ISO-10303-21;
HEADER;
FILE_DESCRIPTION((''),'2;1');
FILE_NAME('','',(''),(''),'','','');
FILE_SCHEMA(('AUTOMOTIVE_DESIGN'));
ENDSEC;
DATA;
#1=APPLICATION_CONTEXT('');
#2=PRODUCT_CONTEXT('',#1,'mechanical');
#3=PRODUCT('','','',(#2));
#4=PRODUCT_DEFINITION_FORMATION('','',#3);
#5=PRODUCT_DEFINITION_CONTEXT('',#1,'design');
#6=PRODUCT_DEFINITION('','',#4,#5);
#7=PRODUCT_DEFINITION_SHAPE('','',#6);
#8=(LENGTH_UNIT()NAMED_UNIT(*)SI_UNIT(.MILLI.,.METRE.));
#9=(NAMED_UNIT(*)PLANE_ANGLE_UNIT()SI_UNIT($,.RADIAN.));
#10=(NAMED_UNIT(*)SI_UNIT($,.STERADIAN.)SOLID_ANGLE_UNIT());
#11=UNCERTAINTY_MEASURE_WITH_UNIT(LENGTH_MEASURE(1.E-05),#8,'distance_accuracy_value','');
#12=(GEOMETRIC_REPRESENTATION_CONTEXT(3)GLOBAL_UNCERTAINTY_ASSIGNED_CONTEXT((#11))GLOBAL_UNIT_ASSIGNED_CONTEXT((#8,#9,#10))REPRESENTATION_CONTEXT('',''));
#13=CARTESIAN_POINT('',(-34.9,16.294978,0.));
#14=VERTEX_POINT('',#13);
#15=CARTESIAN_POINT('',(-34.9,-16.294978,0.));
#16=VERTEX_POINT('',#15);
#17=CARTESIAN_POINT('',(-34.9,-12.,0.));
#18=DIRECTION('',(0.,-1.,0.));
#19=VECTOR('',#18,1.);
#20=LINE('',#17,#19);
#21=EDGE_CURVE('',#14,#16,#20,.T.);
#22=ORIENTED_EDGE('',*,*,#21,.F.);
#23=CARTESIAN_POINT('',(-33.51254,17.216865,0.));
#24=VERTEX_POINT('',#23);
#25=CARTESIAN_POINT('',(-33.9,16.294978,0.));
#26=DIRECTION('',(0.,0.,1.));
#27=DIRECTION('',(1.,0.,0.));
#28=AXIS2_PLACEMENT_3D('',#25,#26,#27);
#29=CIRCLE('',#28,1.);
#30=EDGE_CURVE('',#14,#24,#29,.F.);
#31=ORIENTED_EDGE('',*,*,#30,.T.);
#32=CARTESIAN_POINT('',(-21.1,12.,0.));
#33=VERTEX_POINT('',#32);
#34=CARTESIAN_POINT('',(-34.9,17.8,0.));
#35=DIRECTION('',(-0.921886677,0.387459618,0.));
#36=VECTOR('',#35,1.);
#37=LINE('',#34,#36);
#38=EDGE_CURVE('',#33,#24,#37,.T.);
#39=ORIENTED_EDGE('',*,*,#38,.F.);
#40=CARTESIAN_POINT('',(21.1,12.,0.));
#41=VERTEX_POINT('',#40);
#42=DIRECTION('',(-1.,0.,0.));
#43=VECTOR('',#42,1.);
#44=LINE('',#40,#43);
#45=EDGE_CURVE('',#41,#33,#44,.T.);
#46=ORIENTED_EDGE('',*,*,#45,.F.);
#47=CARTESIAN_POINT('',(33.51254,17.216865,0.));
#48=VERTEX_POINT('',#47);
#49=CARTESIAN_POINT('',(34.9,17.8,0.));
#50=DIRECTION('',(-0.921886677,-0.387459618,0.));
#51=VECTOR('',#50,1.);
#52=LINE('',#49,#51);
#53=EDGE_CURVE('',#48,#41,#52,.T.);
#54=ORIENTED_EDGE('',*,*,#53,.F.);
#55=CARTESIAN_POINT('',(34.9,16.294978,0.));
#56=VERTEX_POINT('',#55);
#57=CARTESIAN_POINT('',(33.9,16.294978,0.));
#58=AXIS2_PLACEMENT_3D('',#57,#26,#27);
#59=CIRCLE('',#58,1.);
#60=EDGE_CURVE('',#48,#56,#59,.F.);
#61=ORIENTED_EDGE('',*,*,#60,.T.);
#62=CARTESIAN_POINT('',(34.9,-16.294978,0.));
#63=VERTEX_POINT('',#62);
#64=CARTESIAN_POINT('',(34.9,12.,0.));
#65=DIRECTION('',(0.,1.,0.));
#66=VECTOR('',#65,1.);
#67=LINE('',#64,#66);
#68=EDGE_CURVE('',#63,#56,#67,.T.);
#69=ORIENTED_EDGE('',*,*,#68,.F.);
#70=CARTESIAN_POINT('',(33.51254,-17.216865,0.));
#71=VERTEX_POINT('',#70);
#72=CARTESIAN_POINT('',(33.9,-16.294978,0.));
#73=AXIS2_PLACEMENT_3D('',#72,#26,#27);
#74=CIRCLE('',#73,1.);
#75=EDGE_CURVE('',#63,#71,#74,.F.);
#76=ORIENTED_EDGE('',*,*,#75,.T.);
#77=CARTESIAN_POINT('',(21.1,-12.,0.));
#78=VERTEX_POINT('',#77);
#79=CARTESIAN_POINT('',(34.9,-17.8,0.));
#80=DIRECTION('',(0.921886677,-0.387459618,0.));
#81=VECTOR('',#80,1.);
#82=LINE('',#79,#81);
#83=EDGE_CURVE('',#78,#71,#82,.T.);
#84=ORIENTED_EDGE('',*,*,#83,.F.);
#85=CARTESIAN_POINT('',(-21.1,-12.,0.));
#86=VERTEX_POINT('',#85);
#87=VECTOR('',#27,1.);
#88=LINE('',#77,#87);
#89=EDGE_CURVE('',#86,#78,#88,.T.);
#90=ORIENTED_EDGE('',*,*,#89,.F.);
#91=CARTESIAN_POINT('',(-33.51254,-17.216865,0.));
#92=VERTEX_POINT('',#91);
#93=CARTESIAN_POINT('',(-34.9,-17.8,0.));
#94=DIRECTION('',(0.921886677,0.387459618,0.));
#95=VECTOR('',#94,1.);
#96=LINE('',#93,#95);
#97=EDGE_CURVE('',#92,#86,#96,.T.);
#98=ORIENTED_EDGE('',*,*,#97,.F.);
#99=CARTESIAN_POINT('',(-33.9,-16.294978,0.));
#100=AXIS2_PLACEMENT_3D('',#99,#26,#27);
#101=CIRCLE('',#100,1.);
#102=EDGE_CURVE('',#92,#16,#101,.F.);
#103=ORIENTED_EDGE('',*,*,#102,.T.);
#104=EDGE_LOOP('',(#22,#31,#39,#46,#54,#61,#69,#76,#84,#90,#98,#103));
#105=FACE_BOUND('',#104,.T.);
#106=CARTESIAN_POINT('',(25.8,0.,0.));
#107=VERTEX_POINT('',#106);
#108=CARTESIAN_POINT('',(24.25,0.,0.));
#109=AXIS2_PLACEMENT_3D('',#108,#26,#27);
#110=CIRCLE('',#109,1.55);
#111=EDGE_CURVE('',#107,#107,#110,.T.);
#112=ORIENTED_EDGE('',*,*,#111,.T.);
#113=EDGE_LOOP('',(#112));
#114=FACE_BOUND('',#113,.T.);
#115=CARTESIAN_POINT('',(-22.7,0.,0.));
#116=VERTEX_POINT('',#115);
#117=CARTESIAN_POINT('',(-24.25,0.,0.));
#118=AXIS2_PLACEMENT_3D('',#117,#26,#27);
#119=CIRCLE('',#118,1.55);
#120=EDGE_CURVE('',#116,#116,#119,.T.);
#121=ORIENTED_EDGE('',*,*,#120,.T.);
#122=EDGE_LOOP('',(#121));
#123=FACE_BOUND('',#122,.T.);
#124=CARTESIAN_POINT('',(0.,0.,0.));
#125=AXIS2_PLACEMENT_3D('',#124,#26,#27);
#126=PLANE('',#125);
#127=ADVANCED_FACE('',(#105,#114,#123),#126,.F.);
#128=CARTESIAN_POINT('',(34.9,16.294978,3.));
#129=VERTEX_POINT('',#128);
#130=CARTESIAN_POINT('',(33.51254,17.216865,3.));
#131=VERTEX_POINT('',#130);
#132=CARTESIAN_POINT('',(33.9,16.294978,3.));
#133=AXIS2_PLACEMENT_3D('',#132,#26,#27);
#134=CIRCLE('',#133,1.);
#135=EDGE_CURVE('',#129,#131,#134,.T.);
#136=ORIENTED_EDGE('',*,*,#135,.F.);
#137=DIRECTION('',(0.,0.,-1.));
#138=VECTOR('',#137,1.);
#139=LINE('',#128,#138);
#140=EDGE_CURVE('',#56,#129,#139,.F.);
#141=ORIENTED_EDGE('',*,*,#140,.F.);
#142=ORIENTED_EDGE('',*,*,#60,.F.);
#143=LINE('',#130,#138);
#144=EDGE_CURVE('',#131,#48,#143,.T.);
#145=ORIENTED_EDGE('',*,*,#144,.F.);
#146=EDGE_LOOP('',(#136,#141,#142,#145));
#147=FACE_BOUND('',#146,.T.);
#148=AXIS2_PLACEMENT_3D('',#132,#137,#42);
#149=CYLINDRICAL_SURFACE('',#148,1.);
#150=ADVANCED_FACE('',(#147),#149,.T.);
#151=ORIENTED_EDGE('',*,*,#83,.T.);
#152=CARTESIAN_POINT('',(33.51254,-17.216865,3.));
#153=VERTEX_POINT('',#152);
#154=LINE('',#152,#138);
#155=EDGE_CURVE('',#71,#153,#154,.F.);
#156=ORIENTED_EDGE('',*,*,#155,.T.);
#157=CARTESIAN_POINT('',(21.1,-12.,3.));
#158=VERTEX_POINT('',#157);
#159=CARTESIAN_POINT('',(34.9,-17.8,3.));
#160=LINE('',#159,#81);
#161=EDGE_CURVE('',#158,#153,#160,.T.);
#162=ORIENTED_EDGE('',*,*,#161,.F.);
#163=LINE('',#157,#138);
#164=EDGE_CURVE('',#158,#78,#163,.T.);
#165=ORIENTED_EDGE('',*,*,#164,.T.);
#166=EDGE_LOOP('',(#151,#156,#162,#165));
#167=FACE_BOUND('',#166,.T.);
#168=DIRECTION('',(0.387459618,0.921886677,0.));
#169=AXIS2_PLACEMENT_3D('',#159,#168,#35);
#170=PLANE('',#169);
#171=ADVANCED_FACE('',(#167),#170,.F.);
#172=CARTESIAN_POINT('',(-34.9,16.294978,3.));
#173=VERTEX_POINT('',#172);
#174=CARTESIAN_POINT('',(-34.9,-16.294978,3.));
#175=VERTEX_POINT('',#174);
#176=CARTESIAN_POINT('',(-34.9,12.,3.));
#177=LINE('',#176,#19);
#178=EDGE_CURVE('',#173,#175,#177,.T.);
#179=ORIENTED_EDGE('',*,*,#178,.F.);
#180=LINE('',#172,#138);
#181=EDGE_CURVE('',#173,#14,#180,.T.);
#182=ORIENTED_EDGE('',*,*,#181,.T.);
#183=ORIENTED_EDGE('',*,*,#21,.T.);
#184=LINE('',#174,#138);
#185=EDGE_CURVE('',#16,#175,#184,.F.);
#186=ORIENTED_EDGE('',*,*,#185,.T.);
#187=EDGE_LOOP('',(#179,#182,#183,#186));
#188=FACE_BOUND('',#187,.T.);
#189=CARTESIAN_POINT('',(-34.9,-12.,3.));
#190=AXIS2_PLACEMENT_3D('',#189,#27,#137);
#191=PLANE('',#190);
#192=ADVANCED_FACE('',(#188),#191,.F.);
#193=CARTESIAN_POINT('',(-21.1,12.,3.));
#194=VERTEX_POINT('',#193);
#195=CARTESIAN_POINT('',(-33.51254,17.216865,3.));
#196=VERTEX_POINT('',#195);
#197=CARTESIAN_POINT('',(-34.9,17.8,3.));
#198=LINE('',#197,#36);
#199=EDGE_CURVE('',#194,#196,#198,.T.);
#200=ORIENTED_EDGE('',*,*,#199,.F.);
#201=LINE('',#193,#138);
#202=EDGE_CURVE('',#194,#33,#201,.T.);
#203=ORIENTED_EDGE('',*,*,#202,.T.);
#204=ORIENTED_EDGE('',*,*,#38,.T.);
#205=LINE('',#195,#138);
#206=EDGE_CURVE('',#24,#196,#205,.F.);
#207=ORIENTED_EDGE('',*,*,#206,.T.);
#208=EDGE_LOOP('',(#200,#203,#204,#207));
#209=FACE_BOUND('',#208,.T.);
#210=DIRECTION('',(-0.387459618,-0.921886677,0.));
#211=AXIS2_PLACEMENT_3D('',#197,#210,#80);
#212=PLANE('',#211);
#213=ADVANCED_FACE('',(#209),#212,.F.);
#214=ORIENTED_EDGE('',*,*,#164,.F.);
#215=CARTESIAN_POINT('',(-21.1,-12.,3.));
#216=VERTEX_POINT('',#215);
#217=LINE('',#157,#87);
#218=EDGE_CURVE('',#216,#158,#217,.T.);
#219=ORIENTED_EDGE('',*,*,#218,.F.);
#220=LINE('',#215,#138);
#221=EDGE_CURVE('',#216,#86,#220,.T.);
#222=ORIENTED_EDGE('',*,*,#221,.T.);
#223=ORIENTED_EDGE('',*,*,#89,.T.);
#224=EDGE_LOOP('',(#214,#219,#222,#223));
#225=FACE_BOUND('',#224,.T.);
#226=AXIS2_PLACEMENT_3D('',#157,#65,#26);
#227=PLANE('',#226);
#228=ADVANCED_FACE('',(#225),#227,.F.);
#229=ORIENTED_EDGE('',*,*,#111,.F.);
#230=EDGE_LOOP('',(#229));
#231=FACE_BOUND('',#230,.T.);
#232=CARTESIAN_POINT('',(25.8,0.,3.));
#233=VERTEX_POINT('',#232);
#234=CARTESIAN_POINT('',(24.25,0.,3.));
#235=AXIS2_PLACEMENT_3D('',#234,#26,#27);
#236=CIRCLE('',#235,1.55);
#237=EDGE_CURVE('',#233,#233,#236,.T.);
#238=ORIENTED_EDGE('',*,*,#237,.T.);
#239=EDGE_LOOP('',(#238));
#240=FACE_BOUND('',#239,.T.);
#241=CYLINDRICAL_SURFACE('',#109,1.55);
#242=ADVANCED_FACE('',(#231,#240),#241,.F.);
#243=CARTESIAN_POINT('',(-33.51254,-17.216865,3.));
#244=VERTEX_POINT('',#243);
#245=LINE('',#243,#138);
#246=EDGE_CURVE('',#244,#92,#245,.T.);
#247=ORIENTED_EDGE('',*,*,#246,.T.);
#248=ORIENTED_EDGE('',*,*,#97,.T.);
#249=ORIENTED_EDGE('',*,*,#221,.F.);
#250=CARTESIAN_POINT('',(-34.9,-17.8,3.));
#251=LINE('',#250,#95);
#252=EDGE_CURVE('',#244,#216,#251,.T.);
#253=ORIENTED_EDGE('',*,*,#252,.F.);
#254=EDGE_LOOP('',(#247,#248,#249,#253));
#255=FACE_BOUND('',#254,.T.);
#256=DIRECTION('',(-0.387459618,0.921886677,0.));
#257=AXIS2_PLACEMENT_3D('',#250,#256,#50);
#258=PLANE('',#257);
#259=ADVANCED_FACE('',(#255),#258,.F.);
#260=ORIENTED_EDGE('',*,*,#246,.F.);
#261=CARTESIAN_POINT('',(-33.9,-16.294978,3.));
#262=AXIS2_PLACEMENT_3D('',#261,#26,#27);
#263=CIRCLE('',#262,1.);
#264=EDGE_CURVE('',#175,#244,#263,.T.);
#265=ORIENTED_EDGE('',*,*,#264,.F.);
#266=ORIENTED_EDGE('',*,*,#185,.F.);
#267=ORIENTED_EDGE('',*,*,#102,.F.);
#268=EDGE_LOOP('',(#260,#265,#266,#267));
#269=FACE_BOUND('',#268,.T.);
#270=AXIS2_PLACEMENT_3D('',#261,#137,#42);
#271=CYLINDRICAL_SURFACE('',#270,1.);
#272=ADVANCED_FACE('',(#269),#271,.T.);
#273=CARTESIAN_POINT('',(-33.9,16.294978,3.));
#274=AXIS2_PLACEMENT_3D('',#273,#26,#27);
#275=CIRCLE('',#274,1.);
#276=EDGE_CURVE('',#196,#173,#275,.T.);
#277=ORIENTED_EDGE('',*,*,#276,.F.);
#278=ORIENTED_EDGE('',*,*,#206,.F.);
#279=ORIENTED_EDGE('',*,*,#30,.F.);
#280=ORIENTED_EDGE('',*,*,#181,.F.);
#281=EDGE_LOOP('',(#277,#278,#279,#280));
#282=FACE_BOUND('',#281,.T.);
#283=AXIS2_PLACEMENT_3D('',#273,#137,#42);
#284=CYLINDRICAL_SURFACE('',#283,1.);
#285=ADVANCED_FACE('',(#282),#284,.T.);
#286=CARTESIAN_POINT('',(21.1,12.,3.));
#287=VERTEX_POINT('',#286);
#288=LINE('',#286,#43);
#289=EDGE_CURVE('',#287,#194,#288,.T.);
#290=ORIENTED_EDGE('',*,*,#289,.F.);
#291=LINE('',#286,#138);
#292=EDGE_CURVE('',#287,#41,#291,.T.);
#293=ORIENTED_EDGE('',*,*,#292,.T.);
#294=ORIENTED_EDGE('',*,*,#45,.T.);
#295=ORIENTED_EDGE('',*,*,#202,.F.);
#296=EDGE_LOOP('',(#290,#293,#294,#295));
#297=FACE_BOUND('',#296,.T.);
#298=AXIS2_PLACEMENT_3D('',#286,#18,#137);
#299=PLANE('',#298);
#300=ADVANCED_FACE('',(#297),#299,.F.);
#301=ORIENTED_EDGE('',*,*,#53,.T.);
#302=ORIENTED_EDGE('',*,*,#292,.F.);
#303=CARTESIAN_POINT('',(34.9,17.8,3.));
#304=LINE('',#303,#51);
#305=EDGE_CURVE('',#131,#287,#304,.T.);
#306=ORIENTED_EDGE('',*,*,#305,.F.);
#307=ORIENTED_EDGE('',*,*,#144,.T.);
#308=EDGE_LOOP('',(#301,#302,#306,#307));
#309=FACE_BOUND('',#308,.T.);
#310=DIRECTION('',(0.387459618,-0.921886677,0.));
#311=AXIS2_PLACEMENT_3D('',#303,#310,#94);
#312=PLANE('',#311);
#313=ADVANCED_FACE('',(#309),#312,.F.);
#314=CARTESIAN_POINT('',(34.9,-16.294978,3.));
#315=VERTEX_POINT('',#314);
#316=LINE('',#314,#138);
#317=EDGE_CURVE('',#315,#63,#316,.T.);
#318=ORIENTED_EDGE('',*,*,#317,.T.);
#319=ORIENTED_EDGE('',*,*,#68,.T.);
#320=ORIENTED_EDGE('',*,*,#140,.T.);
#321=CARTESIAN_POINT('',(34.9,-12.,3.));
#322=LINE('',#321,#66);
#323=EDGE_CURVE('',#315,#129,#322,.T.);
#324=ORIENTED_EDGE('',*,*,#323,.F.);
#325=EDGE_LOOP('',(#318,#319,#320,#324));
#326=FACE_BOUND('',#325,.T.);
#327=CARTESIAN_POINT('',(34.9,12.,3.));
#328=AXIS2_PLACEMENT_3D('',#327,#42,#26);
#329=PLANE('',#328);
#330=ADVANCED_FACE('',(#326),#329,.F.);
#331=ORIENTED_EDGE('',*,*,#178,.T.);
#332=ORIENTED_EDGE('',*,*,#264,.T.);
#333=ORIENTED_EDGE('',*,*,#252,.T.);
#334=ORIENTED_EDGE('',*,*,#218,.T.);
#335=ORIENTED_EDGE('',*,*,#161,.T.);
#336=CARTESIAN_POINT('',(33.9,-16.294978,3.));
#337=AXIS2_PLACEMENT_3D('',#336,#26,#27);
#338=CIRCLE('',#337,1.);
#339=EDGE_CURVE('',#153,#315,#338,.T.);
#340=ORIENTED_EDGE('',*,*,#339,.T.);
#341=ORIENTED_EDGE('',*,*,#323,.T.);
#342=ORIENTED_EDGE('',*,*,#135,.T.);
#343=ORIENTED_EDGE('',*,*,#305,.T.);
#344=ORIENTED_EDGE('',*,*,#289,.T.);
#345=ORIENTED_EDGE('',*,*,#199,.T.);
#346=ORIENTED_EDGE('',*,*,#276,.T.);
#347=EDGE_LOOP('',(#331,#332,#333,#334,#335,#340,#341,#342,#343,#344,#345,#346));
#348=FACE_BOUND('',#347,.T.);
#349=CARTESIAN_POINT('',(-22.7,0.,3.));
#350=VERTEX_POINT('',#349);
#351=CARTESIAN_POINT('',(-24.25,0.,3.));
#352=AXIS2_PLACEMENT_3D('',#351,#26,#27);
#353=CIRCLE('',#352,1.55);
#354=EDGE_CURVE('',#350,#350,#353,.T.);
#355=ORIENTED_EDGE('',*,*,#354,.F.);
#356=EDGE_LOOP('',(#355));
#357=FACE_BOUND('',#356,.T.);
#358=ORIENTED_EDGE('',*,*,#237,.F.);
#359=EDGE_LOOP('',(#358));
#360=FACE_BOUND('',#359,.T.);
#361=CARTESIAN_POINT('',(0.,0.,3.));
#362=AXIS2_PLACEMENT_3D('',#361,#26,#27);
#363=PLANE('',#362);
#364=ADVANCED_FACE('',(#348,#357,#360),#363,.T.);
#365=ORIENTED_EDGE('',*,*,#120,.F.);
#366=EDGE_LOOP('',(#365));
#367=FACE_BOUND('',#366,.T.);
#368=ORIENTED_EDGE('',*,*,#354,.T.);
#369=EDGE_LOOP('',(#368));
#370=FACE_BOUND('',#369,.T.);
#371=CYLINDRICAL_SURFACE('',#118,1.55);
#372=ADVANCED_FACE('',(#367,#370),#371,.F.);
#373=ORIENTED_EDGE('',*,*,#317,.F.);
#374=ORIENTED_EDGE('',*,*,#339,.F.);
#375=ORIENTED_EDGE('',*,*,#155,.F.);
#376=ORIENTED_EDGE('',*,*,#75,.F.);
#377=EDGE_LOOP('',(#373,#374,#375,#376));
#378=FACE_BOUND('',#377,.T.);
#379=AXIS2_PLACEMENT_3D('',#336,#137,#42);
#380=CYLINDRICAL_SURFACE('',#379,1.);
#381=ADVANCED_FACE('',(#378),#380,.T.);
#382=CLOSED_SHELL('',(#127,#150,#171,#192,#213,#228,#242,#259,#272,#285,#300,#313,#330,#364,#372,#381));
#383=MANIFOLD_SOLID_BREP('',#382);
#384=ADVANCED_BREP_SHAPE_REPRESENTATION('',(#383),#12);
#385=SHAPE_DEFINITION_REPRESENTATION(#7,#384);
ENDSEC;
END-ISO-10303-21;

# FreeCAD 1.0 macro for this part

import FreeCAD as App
import Part
import Sketcher

V = App.Vector


def edges_at(feature, points):
    """Names of the edges that pass closest to the given points."""
    edges = feature.Shape.Edges
    near = lambda p: min(range(len(edges)), key=lambda i: edges[i].distToShape(Part.Vertex(*p))[0])
    return sorted({f"Edge{near(p) + 1}" for p in points})


def add_polygon(sketch, points):
    """Adds a closed chain of lines whose ends are joined by coincident constraints."""
    first, n = sketch.GeometryCount, len(points)
    for a, b in zip(points, points[1:] + points[:1]):
        sketch.addGeometry(Part.LineSegment(App.Vector(*a, 0), App.Vector(*b, 0)), False)
    for i in range(n):
        sketch.addConstraint(Sketcher.Constraint("Coincident", first + i, 2, first + (i + 1) % n, 1))

doc = App.newDocument("Part")
body = doc.addObject("PartDesign::Body", "Body")

sketch1 = body.newObject("Sketcher::SketchObject", "Sketch")
sketch1.AttachmentSupport = (doc.getObject("XY_Plane"), [""])
sketch1.MapMode = "FlatFace"
add_polygon(sketch1, [(34.9, 17.8), (21.1, 12), (-21.1, 12), (-34.9, 17.8), (-34.9, -17.8), (-21.1, -12), (21.1, -12), (34.9, -17.8)])
sketch1.addConstraint([
    Sketcher.Constraint("Horizontal", 1),
    Sketcher.Constraint("Vertical", 3),
    Sketcher.Constraint("Horizontal", 5),
    Sketcher.Constraint("Vertical", 7),
    Sketcher.Constraint("Symmetric", 0, 2, 4, 2, -1, 1),
    Sketcher.Constraint("Symmetric", 2, 2, 6, 2, -1, 1),
    Sketcher.Constraint("Parallel", 0, 4),
    Sketcher.Constraint("Parallel", 2, 6),
    Sketcher.Constraint("Horizontal", 3, 2, 6, 2),
    Sketcher.Constraint("Vertical", 1, 2, 4, 2),
    Sketcher.Constraint("DistanceX", 1, 2, 1, 1, 42.2),
    Sketcher.Constraint("DistanceY", 3, 2, 3, 1, 35.6),
    Sketcher.Constraint("DistanceY", -1, 1, 0, 2, 12.0),
    Sketcher.Constraint("DistanceX", 2, 2, 0, 2, 56.0),
])
pad1 = body.newObject("PartDesign::Pad", "Pad")
pad1.Profile = sketch1
pad1.Length = 3
doc.recompute()

fillet = body.newObject("PartDesign::Fillet", "Fillet")
fillet.Base = (pad1, edges_at(pad1, [
    (-34.9, 17.8, 1.5),
    (34.9, 17.8, 1.5),
    (34.9, -17.8, 1.5),
    (-34.9, -17.8, 1.5),
]))
fillet.Radius = 1

sketch2 = body.newObject("Sketcher::SketchObject", "Sketch001")
sketch2.AttachmentSupport = (doc.getObject("XY_Plane"), [""])
sketch2.MapMode = "FlatFace"
sketch2.AttachmentOffset = App.Placement(V(0, 0, 3), App.Rotation())
sketch2.addGeometry([
    Part.Circle(V(-24.25, 0, 0), V(0, 0, 1), 1.55),
    Part.Circle(V(24.25, 0, 0), V(0, 0, 1), 1.55),
], False)
sketch2.addConstraint([
    Sketcher.Constraint("Equal", 0, 1),
    Sketcher.Constraint("Symmetric", 0, 3, 1, 3, -1, 1),
    Sketcher.Constraint("PointOnObject", 0, 3, -1),
    Sketcher.Constraint("Diameter", 0, 3.1),
    Sketcher.Constraint("DistanceX", 0, 3, 1, 3, 48.5),
])
pocket1 = body.newObject("PartDesign::Pocket", "Pocket")
pocket1.Profile = sketch2
pocket1.Type = "ThroughAll"

doc.recompute()
